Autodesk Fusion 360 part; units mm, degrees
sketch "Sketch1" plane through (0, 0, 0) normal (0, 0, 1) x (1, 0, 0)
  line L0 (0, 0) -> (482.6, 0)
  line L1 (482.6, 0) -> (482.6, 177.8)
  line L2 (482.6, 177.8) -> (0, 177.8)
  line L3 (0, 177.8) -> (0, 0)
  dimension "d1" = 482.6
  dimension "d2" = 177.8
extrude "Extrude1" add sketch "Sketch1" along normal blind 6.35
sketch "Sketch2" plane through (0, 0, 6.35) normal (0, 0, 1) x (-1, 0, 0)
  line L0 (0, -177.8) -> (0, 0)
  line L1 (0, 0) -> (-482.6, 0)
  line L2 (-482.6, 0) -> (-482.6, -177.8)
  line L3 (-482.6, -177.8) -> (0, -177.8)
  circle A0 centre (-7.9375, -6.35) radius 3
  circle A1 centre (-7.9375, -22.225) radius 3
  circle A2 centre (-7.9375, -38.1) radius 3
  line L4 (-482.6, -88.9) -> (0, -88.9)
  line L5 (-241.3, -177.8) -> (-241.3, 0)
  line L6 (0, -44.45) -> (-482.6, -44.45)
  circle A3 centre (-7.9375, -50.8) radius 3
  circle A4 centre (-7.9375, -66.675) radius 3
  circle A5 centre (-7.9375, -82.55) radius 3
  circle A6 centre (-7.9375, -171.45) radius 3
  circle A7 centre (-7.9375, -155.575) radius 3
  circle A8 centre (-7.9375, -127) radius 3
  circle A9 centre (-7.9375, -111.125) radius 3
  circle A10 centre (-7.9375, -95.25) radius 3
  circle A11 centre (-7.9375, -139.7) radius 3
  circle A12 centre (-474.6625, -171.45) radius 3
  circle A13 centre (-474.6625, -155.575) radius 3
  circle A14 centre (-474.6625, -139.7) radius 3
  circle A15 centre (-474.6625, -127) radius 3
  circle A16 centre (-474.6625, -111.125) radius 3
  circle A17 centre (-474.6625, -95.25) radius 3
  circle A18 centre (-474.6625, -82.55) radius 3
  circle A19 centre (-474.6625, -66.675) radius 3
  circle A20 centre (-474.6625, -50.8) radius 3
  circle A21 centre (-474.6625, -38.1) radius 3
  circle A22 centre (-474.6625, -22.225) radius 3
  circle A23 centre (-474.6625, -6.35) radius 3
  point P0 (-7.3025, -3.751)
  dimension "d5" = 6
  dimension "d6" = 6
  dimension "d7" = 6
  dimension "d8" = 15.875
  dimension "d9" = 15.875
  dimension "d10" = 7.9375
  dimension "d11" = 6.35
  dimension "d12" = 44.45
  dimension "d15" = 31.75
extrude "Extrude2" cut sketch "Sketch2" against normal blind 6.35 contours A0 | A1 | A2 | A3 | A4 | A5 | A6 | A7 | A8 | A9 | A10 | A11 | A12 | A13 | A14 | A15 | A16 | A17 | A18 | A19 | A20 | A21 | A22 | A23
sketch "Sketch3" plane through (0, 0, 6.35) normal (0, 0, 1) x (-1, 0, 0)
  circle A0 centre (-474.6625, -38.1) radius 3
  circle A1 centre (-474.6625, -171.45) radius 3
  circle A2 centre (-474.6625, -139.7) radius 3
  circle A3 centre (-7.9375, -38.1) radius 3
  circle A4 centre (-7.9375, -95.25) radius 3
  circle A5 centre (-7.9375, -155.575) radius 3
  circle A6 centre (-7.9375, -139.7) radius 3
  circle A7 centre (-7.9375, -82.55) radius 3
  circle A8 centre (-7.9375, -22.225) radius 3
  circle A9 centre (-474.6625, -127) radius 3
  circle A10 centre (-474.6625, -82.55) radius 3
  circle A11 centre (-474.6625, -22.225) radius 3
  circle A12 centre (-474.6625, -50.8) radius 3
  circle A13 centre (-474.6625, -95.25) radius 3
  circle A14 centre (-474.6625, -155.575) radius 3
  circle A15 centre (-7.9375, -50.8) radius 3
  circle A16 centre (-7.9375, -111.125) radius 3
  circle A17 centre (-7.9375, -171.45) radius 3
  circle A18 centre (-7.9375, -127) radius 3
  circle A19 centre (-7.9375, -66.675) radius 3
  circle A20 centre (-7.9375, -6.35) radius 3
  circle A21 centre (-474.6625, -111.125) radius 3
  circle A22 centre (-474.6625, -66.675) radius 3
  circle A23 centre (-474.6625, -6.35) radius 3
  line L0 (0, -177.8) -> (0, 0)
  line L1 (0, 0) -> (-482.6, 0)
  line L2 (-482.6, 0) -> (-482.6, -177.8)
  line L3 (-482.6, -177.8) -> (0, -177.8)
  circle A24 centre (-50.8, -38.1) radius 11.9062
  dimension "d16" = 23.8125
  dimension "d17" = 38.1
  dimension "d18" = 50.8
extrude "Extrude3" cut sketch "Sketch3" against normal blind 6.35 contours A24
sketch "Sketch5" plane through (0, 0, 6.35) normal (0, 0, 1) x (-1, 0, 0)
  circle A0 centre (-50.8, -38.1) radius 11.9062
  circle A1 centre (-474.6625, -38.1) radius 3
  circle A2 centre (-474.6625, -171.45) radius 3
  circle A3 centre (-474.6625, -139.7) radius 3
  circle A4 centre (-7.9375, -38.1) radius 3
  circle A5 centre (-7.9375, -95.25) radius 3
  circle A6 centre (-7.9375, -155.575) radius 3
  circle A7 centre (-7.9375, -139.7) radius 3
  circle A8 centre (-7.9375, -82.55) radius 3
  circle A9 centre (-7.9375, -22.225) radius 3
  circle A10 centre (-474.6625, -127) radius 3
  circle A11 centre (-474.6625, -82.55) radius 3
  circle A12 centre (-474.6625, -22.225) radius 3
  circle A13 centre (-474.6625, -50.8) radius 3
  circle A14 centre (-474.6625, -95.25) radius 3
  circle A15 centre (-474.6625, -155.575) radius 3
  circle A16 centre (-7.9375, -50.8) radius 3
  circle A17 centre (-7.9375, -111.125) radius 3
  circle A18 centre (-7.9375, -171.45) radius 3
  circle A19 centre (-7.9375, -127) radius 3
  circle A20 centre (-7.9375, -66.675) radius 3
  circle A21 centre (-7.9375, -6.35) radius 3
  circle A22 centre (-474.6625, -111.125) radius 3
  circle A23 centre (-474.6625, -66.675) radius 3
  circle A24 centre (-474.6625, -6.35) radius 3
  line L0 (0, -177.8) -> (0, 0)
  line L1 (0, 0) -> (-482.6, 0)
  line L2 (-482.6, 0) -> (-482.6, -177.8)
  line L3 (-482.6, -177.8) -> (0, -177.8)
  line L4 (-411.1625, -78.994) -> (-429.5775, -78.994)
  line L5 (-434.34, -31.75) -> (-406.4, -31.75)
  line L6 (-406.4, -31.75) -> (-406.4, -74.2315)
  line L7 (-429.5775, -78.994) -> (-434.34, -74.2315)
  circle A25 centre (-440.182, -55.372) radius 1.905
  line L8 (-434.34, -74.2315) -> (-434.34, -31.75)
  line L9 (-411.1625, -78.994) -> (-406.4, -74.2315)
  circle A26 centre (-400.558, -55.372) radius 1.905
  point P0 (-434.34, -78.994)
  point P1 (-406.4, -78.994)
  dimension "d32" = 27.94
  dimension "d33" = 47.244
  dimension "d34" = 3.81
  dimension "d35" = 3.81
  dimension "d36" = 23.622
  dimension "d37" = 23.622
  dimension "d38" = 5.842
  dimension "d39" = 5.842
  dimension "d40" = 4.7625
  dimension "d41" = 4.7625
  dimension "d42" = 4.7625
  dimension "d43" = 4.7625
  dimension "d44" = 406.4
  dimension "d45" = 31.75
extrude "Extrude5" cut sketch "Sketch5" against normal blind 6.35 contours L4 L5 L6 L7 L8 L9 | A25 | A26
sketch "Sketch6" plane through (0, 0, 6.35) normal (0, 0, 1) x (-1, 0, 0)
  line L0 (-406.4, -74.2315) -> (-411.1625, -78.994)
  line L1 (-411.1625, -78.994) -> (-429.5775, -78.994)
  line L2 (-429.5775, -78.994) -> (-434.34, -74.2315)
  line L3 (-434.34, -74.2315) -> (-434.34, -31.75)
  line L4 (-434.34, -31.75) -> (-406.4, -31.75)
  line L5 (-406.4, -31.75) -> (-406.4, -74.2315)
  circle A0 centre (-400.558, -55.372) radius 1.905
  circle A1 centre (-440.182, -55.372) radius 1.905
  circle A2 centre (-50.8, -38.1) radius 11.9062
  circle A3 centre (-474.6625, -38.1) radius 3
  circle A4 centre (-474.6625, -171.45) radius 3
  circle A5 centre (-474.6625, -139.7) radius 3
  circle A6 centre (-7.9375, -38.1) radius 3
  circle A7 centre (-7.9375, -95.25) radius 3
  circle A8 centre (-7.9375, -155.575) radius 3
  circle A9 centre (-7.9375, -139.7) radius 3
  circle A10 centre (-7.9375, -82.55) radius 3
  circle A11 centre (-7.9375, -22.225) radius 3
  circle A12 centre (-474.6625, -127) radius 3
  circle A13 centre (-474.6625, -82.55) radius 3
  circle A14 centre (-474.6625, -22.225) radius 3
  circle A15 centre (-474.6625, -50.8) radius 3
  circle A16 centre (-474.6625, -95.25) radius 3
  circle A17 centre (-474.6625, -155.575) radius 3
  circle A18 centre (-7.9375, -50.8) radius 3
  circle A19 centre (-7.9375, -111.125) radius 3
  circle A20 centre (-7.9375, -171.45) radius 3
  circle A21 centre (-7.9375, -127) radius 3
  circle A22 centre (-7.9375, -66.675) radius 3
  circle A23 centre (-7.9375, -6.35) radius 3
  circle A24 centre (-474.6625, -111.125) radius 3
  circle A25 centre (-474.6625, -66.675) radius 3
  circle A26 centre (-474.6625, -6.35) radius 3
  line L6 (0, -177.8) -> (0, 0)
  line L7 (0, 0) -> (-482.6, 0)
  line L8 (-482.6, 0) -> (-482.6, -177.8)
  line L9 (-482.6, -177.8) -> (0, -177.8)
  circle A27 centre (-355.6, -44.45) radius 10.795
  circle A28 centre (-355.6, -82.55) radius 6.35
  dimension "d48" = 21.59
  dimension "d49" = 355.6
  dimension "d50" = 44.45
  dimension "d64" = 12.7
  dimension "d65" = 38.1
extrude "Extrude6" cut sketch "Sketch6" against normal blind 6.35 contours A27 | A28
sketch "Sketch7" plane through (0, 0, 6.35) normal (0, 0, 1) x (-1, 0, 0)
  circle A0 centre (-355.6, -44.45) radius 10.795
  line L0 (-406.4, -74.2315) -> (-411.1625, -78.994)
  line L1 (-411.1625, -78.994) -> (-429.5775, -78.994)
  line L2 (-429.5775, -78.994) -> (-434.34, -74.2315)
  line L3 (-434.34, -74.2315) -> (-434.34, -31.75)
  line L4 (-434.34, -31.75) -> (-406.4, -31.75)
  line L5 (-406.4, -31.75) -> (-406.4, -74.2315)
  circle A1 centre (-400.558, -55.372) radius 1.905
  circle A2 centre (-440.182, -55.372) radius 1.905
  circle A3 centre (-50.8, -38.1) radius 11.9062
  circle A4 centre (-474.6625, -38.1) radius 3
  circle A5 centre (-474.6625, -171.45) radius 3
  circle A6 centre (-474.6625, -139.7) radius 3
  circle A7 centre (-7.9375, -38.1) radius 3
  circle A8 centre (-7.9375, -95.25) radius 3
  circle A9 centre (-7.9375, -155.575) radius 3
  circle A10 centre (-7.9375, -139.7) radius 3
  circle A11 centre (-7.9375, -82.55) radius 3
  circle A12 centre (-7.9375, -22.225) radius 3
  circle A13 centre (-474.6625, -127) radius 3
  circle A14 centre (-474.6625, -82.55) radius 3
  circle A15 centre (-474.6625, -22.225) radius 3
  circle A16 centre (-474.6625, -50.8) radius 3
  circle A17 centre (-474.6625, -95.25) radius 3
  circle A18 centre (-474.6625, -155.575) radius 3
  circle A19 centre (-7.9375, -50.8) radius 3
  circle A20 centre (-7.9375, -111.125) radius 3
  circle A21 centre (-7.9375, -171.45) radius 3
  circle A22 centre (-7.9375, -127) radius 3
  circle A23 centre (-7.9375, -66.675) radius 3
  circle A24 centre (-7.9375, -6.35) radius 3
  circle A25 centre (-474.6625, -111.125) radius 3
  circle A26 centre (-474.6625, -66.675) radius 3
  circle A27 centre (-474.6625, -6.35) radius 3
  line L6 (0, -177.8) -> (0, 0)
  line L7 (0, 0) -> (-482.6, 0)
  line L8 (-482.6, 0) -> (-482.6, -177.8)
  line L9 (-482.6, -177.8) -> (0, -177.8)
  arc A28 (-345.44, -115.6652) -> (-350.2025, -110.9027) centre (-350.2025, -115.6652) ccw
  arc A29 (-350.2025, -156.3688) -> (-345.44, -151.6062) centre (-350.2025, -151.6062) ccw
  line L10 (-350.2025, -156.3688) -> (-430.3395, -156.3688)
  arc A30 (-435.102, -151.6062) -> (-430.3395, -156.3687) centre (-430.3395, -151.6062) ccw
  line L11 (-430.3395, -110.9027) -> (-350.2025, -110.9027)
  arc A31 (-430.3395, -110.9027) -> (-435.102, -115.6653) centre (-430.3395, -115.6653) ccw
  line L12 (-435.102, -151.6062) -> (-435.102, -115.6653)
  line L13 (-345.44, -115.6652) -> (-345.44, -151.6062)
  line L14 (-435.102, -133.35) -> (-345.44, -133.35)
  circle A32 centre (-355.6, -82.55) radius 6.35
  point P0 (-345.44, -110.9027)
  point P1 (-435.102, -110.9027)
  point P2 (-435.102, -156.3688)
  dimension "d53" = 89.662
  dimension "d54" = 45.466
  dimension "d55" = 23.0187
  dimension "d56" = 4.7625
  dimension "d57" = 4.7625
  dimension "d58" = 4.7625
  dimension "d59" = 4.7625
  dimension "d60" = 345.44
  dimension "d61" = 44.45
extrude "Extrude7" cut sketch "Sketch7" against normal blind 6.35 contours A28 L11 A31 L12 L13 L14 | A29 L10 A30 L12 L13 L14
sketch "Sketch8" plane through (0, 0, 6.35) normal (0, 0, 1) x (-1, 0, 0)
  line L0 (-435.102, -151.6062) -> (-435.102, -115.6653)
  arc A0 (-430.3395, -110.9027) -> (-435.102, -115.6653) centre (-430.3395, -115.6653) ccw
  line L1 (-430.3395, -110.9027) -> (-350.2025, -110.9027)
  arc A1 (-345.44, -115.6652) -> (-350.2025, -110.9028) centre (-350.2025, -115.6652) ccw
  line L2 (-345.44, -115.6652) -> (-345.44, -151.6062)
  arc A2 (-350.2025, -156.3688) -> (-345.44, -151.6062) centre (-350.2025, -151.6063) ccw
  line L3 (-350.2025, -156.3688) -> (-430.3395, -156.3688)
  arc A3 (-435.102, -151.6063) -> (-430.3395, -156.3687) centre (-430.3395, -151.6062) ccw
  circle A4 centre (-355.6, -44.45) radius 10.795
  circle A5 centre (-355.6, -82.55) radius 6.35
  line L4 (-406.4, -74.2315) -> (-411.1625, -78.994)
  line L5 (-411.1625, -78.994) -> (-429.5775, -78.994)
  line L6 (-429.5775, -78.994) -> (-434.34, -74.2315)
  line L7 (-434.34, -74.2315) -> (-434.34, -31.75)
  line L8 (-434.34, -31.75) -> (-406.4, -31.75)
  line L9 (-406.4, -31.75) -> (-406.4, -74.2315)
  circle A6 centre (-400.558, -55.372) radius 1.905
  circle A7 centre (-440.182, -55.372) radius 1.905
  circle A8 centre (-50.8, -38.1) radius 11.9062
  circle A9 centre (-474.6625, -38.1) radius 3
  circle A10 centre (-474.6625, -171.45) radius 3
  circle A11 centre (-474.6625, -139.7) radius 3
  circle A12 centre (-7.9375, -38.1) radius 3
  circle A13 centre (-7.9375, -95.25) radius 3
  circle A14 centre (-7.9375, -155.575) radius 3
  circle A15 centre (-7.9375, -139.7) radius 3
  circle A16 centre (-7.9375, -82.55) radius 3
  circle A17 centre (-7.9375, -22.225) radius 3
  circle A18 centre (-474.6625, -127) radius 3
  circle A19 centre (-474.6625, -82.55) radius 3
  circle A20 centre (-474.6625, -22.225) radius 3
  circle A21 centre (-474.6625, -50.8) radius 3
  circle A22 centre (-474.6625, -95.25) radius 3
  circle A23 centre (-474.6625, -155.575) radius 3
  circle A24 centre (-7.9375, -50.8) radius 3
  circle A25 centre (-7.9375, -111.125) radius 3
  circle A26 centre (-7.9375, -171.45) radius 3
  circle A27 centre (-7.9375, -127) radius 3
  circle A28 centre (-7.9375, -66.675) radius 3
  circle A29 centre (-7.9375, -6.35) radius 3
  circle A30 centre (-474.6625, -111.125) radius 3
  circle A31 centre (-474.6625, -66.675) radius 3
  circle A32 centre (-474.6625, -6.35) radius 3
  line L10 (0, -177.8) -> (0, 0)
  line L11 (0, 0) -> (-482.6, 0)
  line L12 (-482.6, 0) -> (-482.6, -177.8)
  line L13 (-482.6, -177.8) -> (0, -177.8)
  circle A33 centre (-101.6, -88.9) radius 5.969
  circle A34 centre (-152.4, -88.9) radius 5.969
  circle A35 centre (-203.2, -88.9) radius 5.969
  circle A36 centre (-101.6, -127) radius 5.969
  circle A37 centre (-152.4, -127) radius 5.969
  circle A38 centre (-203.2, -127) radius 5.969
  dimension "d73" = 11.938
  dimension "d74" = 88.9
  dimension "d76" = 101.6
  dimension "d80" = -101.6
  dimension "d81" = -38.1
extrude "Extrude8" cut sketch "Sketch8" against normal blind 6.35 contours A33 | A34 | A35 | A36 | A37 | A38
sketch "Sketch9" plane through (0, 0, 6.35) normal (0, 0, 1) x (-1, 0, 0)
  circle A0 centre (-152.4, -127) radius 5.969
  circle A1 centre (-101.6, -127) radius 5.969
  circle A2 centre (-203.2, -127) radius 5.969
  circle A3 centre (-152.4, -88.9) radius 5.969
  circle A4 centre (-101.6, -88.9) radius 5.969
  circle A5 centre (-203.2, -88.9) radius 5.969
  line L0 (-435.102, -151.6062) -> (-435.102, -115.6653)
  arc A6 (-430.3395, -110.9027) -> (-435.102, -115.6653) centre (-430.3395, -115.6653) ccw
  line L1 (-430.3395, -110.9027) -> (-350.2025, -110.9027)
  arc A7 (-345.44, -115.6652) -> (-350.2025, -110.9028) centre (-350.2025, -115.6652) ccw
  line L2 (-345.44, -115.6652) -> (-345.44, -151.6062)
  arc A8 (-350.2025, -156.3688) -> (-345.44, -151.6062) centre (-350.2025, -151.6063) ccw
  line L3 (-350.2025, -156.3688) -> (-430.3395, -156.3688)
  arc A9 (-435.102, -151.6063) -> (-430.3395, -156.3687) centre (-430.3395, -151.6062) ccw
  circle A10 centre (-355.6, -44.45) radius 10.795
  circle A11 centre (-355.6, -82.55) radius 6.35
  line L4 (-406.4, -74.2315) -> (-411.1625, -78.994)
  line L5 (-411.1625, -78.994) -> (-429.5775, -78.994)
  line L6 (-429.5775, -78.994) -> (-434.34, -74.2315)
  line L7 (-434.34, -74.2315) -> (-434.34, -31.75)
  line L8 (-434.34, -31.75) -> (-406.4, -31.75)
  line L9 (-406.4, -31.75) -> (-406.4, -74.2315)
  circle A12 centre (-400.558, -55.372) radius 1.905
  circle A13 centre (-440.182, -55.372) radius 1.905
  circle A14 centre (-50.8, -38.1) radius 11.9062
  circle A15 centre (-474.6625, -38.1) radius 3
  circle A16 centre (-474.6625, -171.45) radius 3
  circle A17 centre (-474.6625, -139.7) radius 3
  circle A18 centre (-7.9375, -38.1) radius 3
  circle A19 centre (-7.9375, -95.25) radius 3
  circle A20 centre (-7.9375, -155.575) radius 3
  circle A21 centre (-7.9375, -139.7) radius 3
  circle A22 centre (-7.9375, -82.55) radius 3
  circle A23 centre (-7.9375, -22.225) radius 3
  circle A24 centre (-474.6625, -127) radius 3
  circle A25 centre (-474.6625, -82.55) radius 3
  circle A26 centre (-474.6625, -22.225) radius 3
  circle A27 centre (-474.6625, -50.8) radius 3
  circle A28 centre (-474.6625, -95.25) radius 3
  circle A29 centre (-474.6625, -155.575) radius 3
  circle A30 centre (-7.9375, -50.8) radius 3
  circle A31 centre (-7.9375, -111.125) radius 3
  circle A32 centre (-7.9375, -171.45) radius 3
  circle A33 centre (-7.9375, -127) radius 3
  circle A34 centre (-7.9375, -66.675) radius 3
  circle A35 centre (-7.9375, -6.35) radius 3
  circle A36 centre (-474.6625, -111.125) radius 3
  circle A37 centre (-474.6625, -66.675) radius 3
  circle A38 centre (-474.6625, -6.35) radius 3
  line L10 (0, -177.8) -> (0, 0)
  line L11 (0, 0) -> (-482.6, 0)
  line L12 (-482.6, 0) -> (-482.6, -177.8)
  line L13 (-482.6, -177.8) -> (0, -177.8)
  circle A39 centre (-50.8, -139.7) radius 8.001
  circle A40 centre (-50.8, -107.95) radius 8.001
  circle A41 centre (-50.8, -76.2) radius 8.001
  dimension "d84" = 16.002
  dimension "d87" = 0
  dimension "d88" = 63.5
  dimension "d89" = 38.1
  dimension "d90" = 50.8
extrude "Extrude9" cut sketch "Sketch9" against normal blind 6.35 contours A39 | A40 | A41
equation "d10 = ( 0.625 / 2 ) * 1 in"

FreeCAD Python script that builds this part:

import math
import FreeCAD as App
import Part
import Sketcher
from FreeCAD import Vector
Q = App.Units.Quantity

doc = App.newDocument("Part")
body = doc.addObject("PartDesign::Body", "Body")

# Sketch on XY plane
sketch1 = body.newObject("Sketcher::SketchObject", "Sketch")
sketch1.AttachmentSupport = (doc.getObject("XY_Plane"), [""])
sketch1.MapMode = "FlatFace"
sketch1.addGeometry(Part.LineSegment(Vector(0, 178, 0), Vector(0, 0, 0)), False)
sketch1.addGeometry(Part.LineSegment(Vector(0, 0, 0), Vector(483, 0, 0)), False)
sketch1.addGeometry(Part.LineSegment(Vector(483, 0, 0), Vector(483, 178, 0)), False)
sketch1.addGeometry(Part.LineSegment(Vector(483, 178, 0), Vector(0, 178, 0)), False)
sketch1.addConstraint(Sketcher.Constraint("Coincident", 0, 2, 1, 1))
sketch1.addConstraint(Sketcher.Constraint("Coincident", 1, 2, 2, 1))
sketch1.addConstraint(Sketcher.Constraint("Coincident", 2, 2, 3, 1))
sketch1.addConstraint(Sketcher.Constraint("Coincident", 3, 2, 0, 1))
sketch1.addConstraint(Sketcher.Constraint("Vertical", 0))
sketch1.addConstraint(Sketcher.Constraint("Horizontal", 1))
sketch1.addConstraint(Sketcher.Constraint("Vertical", 2))
sketch1.addConstraint(Sketcher.Constraint("Horizontal", 3))
sketch1.addConstraint(Sketcher.Constraint("Coincident", 0, 2, -1, 1))
sketch1.addConstraint(Sketcher.Constraint("DistanceX", 1, 1, 1, 2, Q("19 in")))
sketch1.addConstraint(Sketcher.Constraint("DistanceY", 0, 2, 0, 1, Q("7 in")))
pad1 = body.newObject("PartDesign::Pad", "Pad")
pad1.Profile = sketch1
pad1.Length = Q("0.25 in")

# Sketch on XY plane
sketch2 = body.newObject("Sketcher::SketchObject", "Sketch001")
sketch2.AttachmentSupport = (doc.getObject("XY_Plane"), [""])
sketch2.MapMode = "FlatFace"
sketch2.AttachmentOffset = App.Placement(Vector(0, 0, 0.25 * 25.4), App.Rotation())
sketch2.addGeometry(Part.Circle(Vector(7.9, 6.3, 0), Vector(0, 0, 1), 3), False)
sketch2.addGeometry(Part.Circle(Vector(7.9, 22.2, 0), Vector(0, 0, 1), 3), False)
sketch2.addGeometry(Part.Circle(Vector(7.9, 38.1, 0), Vector(0, 0, 1), 3), False)
sketch2.addGeometry(Part.Circle(Vector(7.9, 50.8, 0), Vector(0, 0, 1), 3), False)
sketch2.addGeometry(Part.Circle(Vector(7.9, 66.7, 0), Vector(0, 0, 1), 3), False)
sketch2.addGeometry(Part.Circle(Vector(7.9, 82.5, 0), Vector(0, 0, 1), 3), False)
sketch2.addGeometry(Part.Circle(Vector(7.9, 171.4, 0), Vector(0, 0, 1), 3), False)
sketch2.addGeometry(Part.Circle(Vector(7.9, 155.6, 0), Vector(0, 0, 1), 3), False)
sketch2.addGeometry(Part.Circle(Vector(7.9, 127, 0), Vector(0, 0, 1), 3), False)
sketch2.addGeometry(Part.Circle(Vector(7.9, 111.1, 0), Vector(0, 0, 1), 3), False)
sketch2.addGeometry(Part.Circle(Vector(7.9, 95.2, 0), Vector(0, 0, 1), 3), False)
sketch2.addGeometry(Part.Circle(Vector(7.9, 139.7, 0), Vector(0, 0, 1), 3), False)
sketch2.addGeometry(Part.Circle(Vector(474.7, 171.4, 0), Vector(0, 0, 1), 3), False)
sketch2.addGeometry(Part.Circle(Vector(474.7, 155.6, 0), Vector(0, 0, 1), 3), False)
sketch2.addGeometry(Part.Circle(Vector(474.7, 139.7, 0), Vector(0, 0, 1), 3), False)
sketch2.addGeometry(Part.Circle(Vector(474.7, 127, 0), Vector(0, 0, 1), 3), False)
sketch2.addGeometry(Part.Circle(Vector(474.7, 111.1, 0), Vector(0, 0, 1), 3), False)
sketch2.addGeometry(Part.Circle(Vector(474.7, 95.2, 0), Vector(0, 0, 1), 3), False)
sketch2.addGeometry(Part.Circle(Vector(474.7, 82.5, 0), Vector(0, 0, 1), 3), False)
sketch2.addGeometry(Part.Circle(Vector(474.7, 66.7, 0), Vector(0, 0, 1), 3), False)
sketch2.addGeometry(Part.Circle(Vector(474.7, 50.8, 0), Vector(0, 0, 1), 3), False)
sketch2.addGeometry(Part.Circle(Vector(474.7, 38.1, 0), Vector(0, 0, 1), 3), False)
sketch2.addGeometry(Part.Circle(Vector(474.7, 22.2, 0), Vector(0, 0, 1), 3), False)
sketch2.addGeometry(Part.Circle(Vector(474.7, 6.3, 0), Vector(0, 0, 1), 3), False)
sketch2.addConstraint(Sketcher.Constraint("Equal", 0, 1))
sketch2.addConstraint(Sketcher.Constraint("Equal", 1, 2))
sketch2.addConstraint(Sketcher.Constraint("Equal", 2, 3))
sketch2.addConstraint(Sketcher.Constraint("Equal", 3, 4))
sketch2.addConstraint(Sketcher.Constraint("Equal", 4, 5))
sketch2.addConstraint(Sketcher.Constraint("Equal", 5, 6))
sketch2.addConstraint(Sketcher.Constraint("Equal", 6, 7))
sketch2.addConstraint(Sketcher.Constraint("Equal", 7, 8))
sketch2.addConstraint(Sketcher.Constraint("Equal", 8, 9))
sketch2.addConstraint(Sketcher.Constraint("Equal", 9, 10))
sketch2.addConstraint(Sketcher.Constraint("Equal", 10, 11))
sketch2.addConstraint(Sketcher.Constraint("Equal", 11, 12))
sketch2.addConstraint(Sketcher.Constraint("Equal", 12, 13))
sketch2.addConstraint(Sketcher.Constraint("Equal", 13, 14))
sketch2.addConstraint(Sketcher.Constraint("Equal", 14, 15))
sketch2.addConstraint(Sketcher.Constraint("Equal", 15, 16))
sketch2.addConstraint(Sketcher.Constraint("Equal", 16, 17))
sketch2.addConstraint(Sketcher.Constraint("Equal", 17, 18))
sketch2.addConstraint(Sketcher.Constraint("Equal", 18, 19))
sketch2.addConstraint(Sketcher.Constraint("Equal", 19, 20))
sketch2.addConstraint(Sketcher.Constraint("Equal", 20, 21))
sketch2.addConstraint(Sketcher.Constraint("Equal", 21, 22))
sketch2.addConstraint(Sketcher.Constraint("Equal", 22, 23))
sketch2.addConstraint(Sketcher.Constraint("Horizontal", 6, 3, 12, 3))
sketch2.addConstraint(Sketcher.Constraint("Horizontal", 7, 3, 13, 3))
sketch2.addConstraint(Sketcher.Constraint("Horizontal", 11, 3, 14, 3))
sketch2.addConstraint(Sketcher.Constraint("Horizontal", 8, 3, 15, 3))
sketch2.addConstraint(Sketcher.Constraint("Horizontal", 9, 3, 16, 3))
sketch2.addConstraint(Sketcher.Constraint("Horizontal", 10, 3, 17, 3))
sketch2.addConstraint(Sketcher.Constraint("Horizontal", 5, 3, 18, 3))
sketch2.addConstraint(Sketcher.Constraint("Horizontal", 4, 3, 19, 3))
sketch2.addConstraint(Sketcher.Constraint("Horizontal", 3, 3, 20, 3))
sketch2.addConstraint(Sketcher.Constraint("Horizontal", 2, 3, 21, 3))
sketch2.addConstraint(Sketcher.Constraint("Horizontal", 1, 3, 22, 3))
sketch2.addConstraint(Sketcher.Constraint("Horizontal", 0, 3, 23, 3))
sketch2.addConstraint(Sketcher.Constraint("Vertical", 0, 3, 1, 3))
sketch2.addConstraint(Sketcher.Constraint("Vertical", 1, 3, 2, 3))
sketch2.addConstraint(Sketcher.Constraint("Vertical", 2, 3, 3, 3))
sketch2.addConstraint(Sketcher.Constraint("Vertical", 3, 3, 4, 3))
sketch2.addConstraint(Sketcher.Constraint("Vertical", 4, 3, 5, 3))
sketch2.addConstraint(Sketcher.Constraint("Vertical", 5, 3, 6, 3))
sketch2.addConstraint(Sketcher.Constraint("Vertical", 6, 3, 7, 3))
sketch2.addConstraint(Sketcher.Constraint("Vertical", 7, 3, 8, 3))
sketch2.addConstraint(Sketcher.Constraint("Vertical", 8, 3, 9, 3))
sketch2.addConstraint(Sketcher.Constraint("Vertical", 9, 3, 10, 3))
sketch2.addConstraint(Sketcher.Constraint("Vertical", 10, 3, 11, 3))
sketch2.addConstraint(Sketcher.Constraint("Vertical", 12, 3, 13, 3))
sketch2.addConstraint(Sketcher.Constraint("Vertical", 13, 3, 14, 3))
sketch2.addConstraint(Sketcher.Constraint("Vertical", 14, 3, 15, 3))
sketch2.addConstraint(Sketcher.Constraint("Vertical", 15, 3, 16, 3))
sketch2.addConstraint(Sketcher.Constraint("Vertical", 16, 3, 17, 3))
sketch2.addConstraint(Sketcher.Constraint("Vertical", 17, 3, 18, 3))
sketch2.addConstraint(Sketcher.Constraint("Vertical", 18, 3, 19, 3))
sketch2.addConstraint(Sketcher.Constraint("Vertical", 19, 3, 20, 3))
sketch2.addConstraint(Sketcher.Constraint("Vertical", 20, 3, 21, 3))
sketch2.addConstraint(Sketcher.Constraint("Vertical", 21, 3, 22, 3))
sketch2.addConstraint(Sketcher.Constraint("Vertical", 22, 3, 23, 3))
sketch2.addConstraint(Sketcher.Constraint("Diameter", 0, Q("6 mm")))
sketch2.addConstraint(Sketcher.Constraint("DistanceY", -1, 1, 0, 3, Q("0.25 in")))
sketch2.addConstraint(Sketcher.Constraint("DistanceY", 0, 3, 2, 3, Q("1.25 in")))
sketch2.addConstraint(Sketcher.Constraint("DistanceY", 0, 3, 3, 3, Q("1.75 in")))
sketch2.addConstraint(Sketcher.Constraint("DistanceY", 1, 3, 4, 3, Q("1.75 in")))
sketch2.addConstraint(Sketcher.Constraint("DistanceY", 3, 3, 5, 3, Q("1.25 in")))
sketch2.addConstraint(Sketcher.Constraint("DistanceY", 8, 3, 6, 3, Q("1.75 in")))
sketch2.addConstraint(Sketcher.Constraint("DistanceY", 5, 3, 8, 3, Q("1.75 in")))
sketch2.addConstraint(Sketcher.Constraint("DistanceY", 9, 3, 7, 3, Q("1.75 in")))
sketch2.addConstraint(Sketcher.Constraint("DistanceY", 4, 3, 9, 3, Q("1.75 in")))
sketch2.addConstraint(Sketcher.Constraint("DistanceY", 10, 3, 8, 3, Q("1.25 in")))
sketch2.addConstraint(Sketcher.Constraint("DistanceY", 11, 3, 6, 3, Q("1.25 in")))
sketch2.addConstraint(Sketcher.Constraint("DistanceX", -1, 1, 0, 3, Q("0.3125 in")))
sketch2.addConstraint(Sketcher.Constraint("DistanceY", 0, 3, 1, 3, Q("0.625 in")))
sketch2.addConstraint(Sketcher.Constraint("DistanceX", -1, 1, 12, 3, Q("18.6875 in")))
pocket1 = body.newObject("PartDesign::Pocket", "Pocket")
pocket1.Profile = sketch2
pocket1.Length = Q("0.25 in")

# Sketch on XY plane
sketch3 = body.newObject("Sketcher::SketchObject", "Sketch002")
sketch3.AttachmentSupport = (doc.getObject("XY_Plane"), [""])
sketch3.MapMode = "FlatFace"
sketch3.AttachmentOffset = App.Placement(Vector(0, 0, 0.25 * 25.4), App.Rotation())
sketch3.addGeometry(Part.Circle(Vector(51, 38, 0), Vector(0, 0, 1), 12), False)
sketch3.addConstraint(Sketcher.Constraint("Diameter", 0, Q("0.9375 in")))
sketch3.addConstraint(Sketcher.Constraint("DistanceX", -1, 1, 0, 3, Q("2 in")))
sketch3.addConstraint(Sketcher.Constraint("DistanceY", -1, 1, 0, 3, Q("1.5 in")))
pocket2 = body.newObject("PartDesign::Pocket", "Pocket001")
pocket2.Profile = sketch3
pocket2.Length = Q("0.25 in")

# Sketch on XY plane
sketch4 = body.newObject("Sketcher::SketchObject", "Sketch003")
sketch4.AttachmentSupport = (doc.getObject("XY_Plane"), [""])
sketch4.MapMode = "FlatFace"
sketch4.AttachmentOffset = App.Placement(Vector(0, 0, 0.25 * 25.4), App.Rotation())
sketch4.addGeometry(Part.LineSegment(Vector(429.6, 79, 0), Vector(411.2, 79, 0)), False)
sketch4.addGeometry(Part.LineSegment(Vector(411.2, 79, 0), Vector(406.4, 74.2, 0)), False)
sketch4.addGeometry(Part.LineSegment(Vector(406.4, 74.2, 0), Vector(406.4, 31.8, 0)), False)
sketch4.addGeometry(Part.LineSegment(Vector(406.4, 31.8, 0), Vector(434.3, 31.8, 0)), False)
sketch4.addGeometry(Part.LineSegment(Vector(434.3, 31.8, 0), Vector(434.3, 74.2, 0)), False)
sketch4.addGeometry(Part.LineSegment(Vector(434.3, 74.2, 0), Vector(429.6, 79, 0)), False)
sketch4.addGeometry(Part.Circle(Vector(440.2, 55.4, 0), Vector(0, 0, 1), 1.9), False)
sketch4.addGeometry(Part.Circle(Vector(400.6, 55.4, 0), Vector(0, 0, 1), 1.9), False)
sketch4.addConstraint(Sketcher.Constraint("Coincident", 0, 2, 1, 1))
sketch4.addConstraint(Sketcher.Constraint("Coincident", 1, 2, 2, 1))
sketch4.addConstraint(Sketcher.Constraint("Coincident", 2, 2, 3, 1))
sketch4.addConstraint(Sketcher.Constraint("Coincident", 3, 2, 4, 1))
sketch4.addConstraint(Sketcher.Constraint("Coincident", 4, 2, 5, 1))
sketch4.addConstraint(Sketcher.Constraint("Coincident", 5, 2, 0, 1))
sketch4.addConstraint(Sketcher.Constraint("Horizontal", 0))
sketch4.addConstraint(Sketcher.Constraint("Vertical", 2))
sketch4.addConstraint(Sketcher.Constraint("Horizontal", 3))
sketch4.addConstraint(Sketcher.Constraint("Vertical", 4))
sketch4.addConstraint(Sketcher.Constraint("Equal", 6, 7))
sketch4.addConstraint(Sketcher.Constraint("Perpendicular", 1, 5))
sketch4.addConstraint(Sketcher.Constraint("Horizontal", 6, 3, 7, 3))
sketch4.addConstraint(Sketcher.Constraint("Horizontal", 1, 2, 4, 2))
sketch4.addConstraint(Sketcher.Constraint("Equal", 1, 5))
sketch4.addConstraint(Sketcher.Constraint("Diameter", 6, Q("0.15 in")))
sketch4.addConstraint(Sketcher.Constraint("DistanceX", 3, 1, 3, 2, Q("1.1 in")))
sketch4.addConstraint(Sketcher.Constraint("DistanceX", -1, 1, 1, 2, Q("16 in")))
sketch4.addConstraint(Sketcher.Constraint("DistanceY", -1, 1, 2, 2, Q("1.25 in")))
sketch4.addConstraint(Sketcher.Constraint("DistanceY", 7, 3, 0, 2, Q("0.93 in")))
sketch4.addConstraint(Sketcher.Constraint("DistanceX", 7, 3, 1, 2, Q("0.23 in")))
sketch4.addConstraint(Sketcher.Constraint("DistanceY", 2, 2, 7, 3, Q("0.93 in")))
sketch4.addConstraint(Sketcher.Constraint("DistanceX", 3, 2, 6, 3, Q("0.23 in")))
sketch4.addConstraint(Sketcher.Constraint("DistanceX", 1, 2, 0, 2, Q("0.1875 in")))
pocket3 = body.newObject("PartDesign::Pocket", "Pocket002")
pocket3.Profile = sketch4
pocket3.Length = Q("0.25 in")

# Sketch on XY plane
sketch5 = body.newObject("Sketcher::SketchObject", "Sketch004")
sketch5.AttachmentSupport = (doc.getObject("XY_Plane"), [""])
sketch5.MapMode = "FlatFace"
sketch5.AttachmentOffset = App.Placement(Vector(0, 0, 0.25 * 25.4), App.Rotation())
sketch5.addGeometry(Part.Circle(Vector(356, 44, 0), Vector(0, 0, 1), 11), False)
sketch5.addGeometry(Part.Circle(Vector(356, 83, 0), Vector(0, 0, 1), 6), False)
sketch5.addConstraint(Sketcher.Constraint("Vertical", 0, 3, 1, 3))
sketch5.addConstraint(Sketcher.Constraint("Diameter", 1, Q("0.5 in")))
sketch5.addConstraint(Sketcher.Constraint("Diameter", 0, Q("0.85 in")))
sketch5.addConstraint(Sketcher.Constraint("DistanceX", -1, 1, 0, 3, Q("14 in")))
sketch5.addConstraint(Sketcher.Constraint("DistanceY", 0, 3, 1, 3, Q("1.5 in")))
sketch5.addConstraint(Sketcher.Constraint("DistanceY", -1, 1, 0, 3, Q("1.75 in")))
pocket4 = body.newObject("PartDesign::Pocket", "Pocket003")
pocket4.Profile = sketch5
pocket4.Length = Q("0.25 in")

# Sketch on XY plane
sketch6 = body.newObject("Sketcher::SketchObject", "Sketch005")
sketch6.AttachmentSupport = (doc.getObject("XY_Plane"), [""])
sketch6.MapMode = "FlatFace"
sketch6.AttachmentOffset = App.Placement(Vector(0, 0, 0.25 * 25.4), App.Rotation())
sketch6.addGeometry(Part.ArcOfCircle(Part.Circle(Vector(350.2, 115.7, 0), Vector(0, 0, 1), 4.8), math.radians(180), math.radians(270)), False)
sketch6.addGeometry(Part.LineSegment(Vector(350.2, 110.9, 0), Vector(430.3, 110.9, 0)), False)
sketch6.addGeometry(Part.ArcOfCircle(Part.Circle(Vector(430.3, 115.7, 0), Vector(0, 0, 1), 4.8), math.radians(-90), math.radians(0)), False)
sketch6.addGeometry(Part.LineSegment(Vector(435.1, 115.7, 0), Vector(435.1, 151.6, 0)), False)
sketch6.addGeometry(Part.ArcOfCircle(Part.Circle(Vector(430.3, 151.6, 0), Vector(0, 0, 1), 4.8), math.radians(0), math.radians(90)), False)
sketch6.addGeometry(Part.LineSegment(Vector(430.3, 156.4, 0), Vector(350.2, 156.4, 0)), False)
sketch6.addGeometry(Part.ArcOfCircle(Part.Circle(Vector(350.2, 151.6, 0), Vector(0, 0, 1), 4.8), math.radians(90), math.radians(180)), False)
sketch6.addGeometry(Part.LineSegment(Vector(345.4, 151.6, 0), Vector(345.4, 115.7, 0)), False)
sketch6.addConstraint(Sketcher.Constraint("Tangent", 0, 2, 1, 1))
sketch6.addConstraint(Sketcher.Constraint("Tangent", 1, 2, 2, 1))
sketch6.addConstraint(Sketcher.Constraint("Tangent", 2, 2, 3, 1))
sketch6.addConstraint(Sketcher.Constraint("Tangent", 3, 2, 4, 1))
sketch6.addConstraint(Sketcher.Constraint("Tangent", 4, 2, 5, 1))
sketch6.addConstraint(Sketcher.Constraint("Tangent", 5, 2, 6, 1))
sketch6.addConstraint(Sketcher.Constraint("Tangent", 6, 2, 7, 1))
sketch6.addConstraint(Sketcher.Constraint("Tangent", 7, 2, 0, 1))
sketch6.addConstraint(Sketcher.Constraint("Horizontal", 1))
sketch6.addConstraint(Sketcher.Constraint("Vertical", 3))
sketch6.addConstraint(Sketcher.Constraint("Horizontal", 5))
sketch6.addConstraint(Sketcher.Constraint("Vertical", 7))
sketch6.addConstraint(Sketcher.Constraint("Equal", 0, 2))
sketch6.addConstraint(Sketcher.Constraint("Equal", 2, 4))
sketch6.addConstraint(Sketcher.Constraint("Equal", 4, 6))
sketch6.addConstraint(Sketcher.Constraint("Radius", 0, Q("0.1875 in")))
sketch6.addConstraint(Sketcher.Constraint("DistanceX", -1, 1, 6, 2, Q("13.6 in")))
sketch6.addConstraint(Sketcher.Constraint("DistanceY", 1, 2, 4, 2, Q("1.79 in")))
sketch6.addConstraint(Sketcher.Constraint("DistanceX", 1, 1, 1, 2, Q("3.155 in")))
sketch6.addConstraint(Sketcher.Constraint("DistanceY", -1, 1, 4, 3, Q("5.968748 in")))
pocket5 = body.newObject("PartDesign::Pocket", "Pocket004")
pocket5.Profile = sketch6
pocket5.Length = Q("0.25 in")

# Sketch on XY plane
sketch7 = body.newObject("Sketcher::SketchObject", "Sketch006")
sketch7.AttachmentSupport = (doc.getObject("XY_Plane"), [""])
sketch7.MapMode = "FlatFace"
sketch7.AttachmentOffset = App.Placement(Vector(0, 0, 0.25 * 25.4), App.Rotation())
sketch7.addGeometry(Part.Circle(Vector(102, 89, 0), Vector(0, 0, 1), 6), False)
sketch7.addGeometry(Part.Circle(Vector(152, 89, 0), Vector(0, 0, 1), 6), False)
sketch7.addGeometry(Part.Circle(Vector(203, 89, 0), Vector(0, 0, 1), 6), False)
sketch7.addGeometry(Part.Circle(Vector(102, 127, 0), Vector(0, 0, 1), 6), False)
sketch7.addGeometry(Part.Circle(Vector(152, 127, 0), Vector(0, 0, 1), 6), False)
sketch7.addGeometry(Part.Circle(Vector(203, 127, 0), Vector(0, 0, 1), 6), False)
sketch7.addConstraint(Sketcher.Constraint("Equal", 0, 1))
sketch7.addConstraint(Sketcher.Constraint("Equal", 1, 2))
sketch7.addConstraint(Sketcher.Constraint("Equal", 2, 3))
sketch7.addConstraint(Sketcher.Constraint("Equal", 3, 4))
sketch7.addConstraint(Sketcher.Constraint("Equal", 4, 5))
sketch7.addConstraint(Sketcher.Constraint("Horizontal", 0, 3, 1, 3))
sketch7.addConstraint(Sketcher.Constraint("Horizontal", 1, 3, 2, 3))
sketch7.addConstraint(Sketcher.Constraint("Horizontal", 3, 3, 4, 3))
sketch7.addConstraint(Sketcher.Constraint("Horizontal", 4, 3, 5, 3))
sketch7.addConstraint(Sketcher.Constraint("Vertical", 0, 3, 3, 3))
sketch7.addConstraint(Sketcher.Constraint("Vertical", 1, 3, 4, 3))
sketch7.addConstraint(Sketcher.Constraint("Vertical", 2, 3, 5, 3))
sketch7.addConstraint(Sketcher.Constraint("Diameter", 0, Q("0.47 in")))
sketch7.addConstraint(Sketcher.Constraint("DistanceX", -1, 1, 0, 3, Q("4 in")))
sketch7.addConstraint(Sketcher.Constraint("DistanceX", 0, 3, 2, 3, Q("4 in")))
sketch7.addConstraint(Sketcher.Constraint("DistanceY", -1, 1, 0, 3, Q("3.5 in")))
sketch7.addConstraint(Sketcher.Constraint("DistanceY", 0, 3, 3, 3, Q("1.5 in")))
sketch7.addConstraint(Sketcher.Constraint("DistanceX", -1, 1, 1, 3, Q("6 in")))
pocket6 = body.newObject("PartDesign::Pocket", "Pocket005")
pocket6.Profile = sketch7
pocket6.Length = Q("0.25 in")

# Sketch on XY plane
sketch8 = body.newObject("Sketcher::SketchObject", "Sketch007")
sketch8.AttachmentSupport = (doc.getObject("XY_Plane"), [""])
sketch8.MapMode = "FlatFace"
sketch8.AttachmentOffset = App.Placement(Vector(0, 0, 0.25 * 25.4), App.Rotation())
sketch8.addGeometry(Part.Circle(Vector(51, 140, 0), Vector(0, 0, 1), 8), False)
sketch8.addGeometry(Part.Circle(Vector(51, 108, 0), Vector(0, 0, 1), 8), False)
sketch8.addGeometry(Part.Circle(Vector(51, 76, 0), Vector(0, 0, 1), 8), False)
sketch8.addConstraint(Sketcher.Constraint("Equal", 0, 1))
sketch8.addConstraint(Sketcher.Constraint("Equal", 1, 2))
sketch8.addConstraint(Sketcher.Constraint("Vertical", 0, 3, 1, 3))
sketch8.addConstraint(Sketcher.Constraint("Vertical", 1, 3, 2, 3))
sketch8.addConstraint(Sketcher.Constraint("Diameter", 0, Q("0.63 in")))
sketch8.addConstraint(Sketcher.Constraint("DistanceX", -1, 1, 0, 3, Q("2 in")))
sketch8.addConstraint(Sketcher.Constraint("DistanceY", 2, 3, 0, 3, Q("2.5 in")))
sketch8.addConstraint(Sketcher.Constraint("DistanceY", -1, 1, 2, 3, Q("3 in")))
sketch8.addConstraint(Sketcher.Constraint("DistanceY", -1, 1, 1, 3, Q("4.25 in")))
pocket7 = body.newObject("PartDesign::Pocket", "Pocket006")
pocket7.Profile = sketch8
pocket7.Length = Q("0.25 in")

doc.recompute()
